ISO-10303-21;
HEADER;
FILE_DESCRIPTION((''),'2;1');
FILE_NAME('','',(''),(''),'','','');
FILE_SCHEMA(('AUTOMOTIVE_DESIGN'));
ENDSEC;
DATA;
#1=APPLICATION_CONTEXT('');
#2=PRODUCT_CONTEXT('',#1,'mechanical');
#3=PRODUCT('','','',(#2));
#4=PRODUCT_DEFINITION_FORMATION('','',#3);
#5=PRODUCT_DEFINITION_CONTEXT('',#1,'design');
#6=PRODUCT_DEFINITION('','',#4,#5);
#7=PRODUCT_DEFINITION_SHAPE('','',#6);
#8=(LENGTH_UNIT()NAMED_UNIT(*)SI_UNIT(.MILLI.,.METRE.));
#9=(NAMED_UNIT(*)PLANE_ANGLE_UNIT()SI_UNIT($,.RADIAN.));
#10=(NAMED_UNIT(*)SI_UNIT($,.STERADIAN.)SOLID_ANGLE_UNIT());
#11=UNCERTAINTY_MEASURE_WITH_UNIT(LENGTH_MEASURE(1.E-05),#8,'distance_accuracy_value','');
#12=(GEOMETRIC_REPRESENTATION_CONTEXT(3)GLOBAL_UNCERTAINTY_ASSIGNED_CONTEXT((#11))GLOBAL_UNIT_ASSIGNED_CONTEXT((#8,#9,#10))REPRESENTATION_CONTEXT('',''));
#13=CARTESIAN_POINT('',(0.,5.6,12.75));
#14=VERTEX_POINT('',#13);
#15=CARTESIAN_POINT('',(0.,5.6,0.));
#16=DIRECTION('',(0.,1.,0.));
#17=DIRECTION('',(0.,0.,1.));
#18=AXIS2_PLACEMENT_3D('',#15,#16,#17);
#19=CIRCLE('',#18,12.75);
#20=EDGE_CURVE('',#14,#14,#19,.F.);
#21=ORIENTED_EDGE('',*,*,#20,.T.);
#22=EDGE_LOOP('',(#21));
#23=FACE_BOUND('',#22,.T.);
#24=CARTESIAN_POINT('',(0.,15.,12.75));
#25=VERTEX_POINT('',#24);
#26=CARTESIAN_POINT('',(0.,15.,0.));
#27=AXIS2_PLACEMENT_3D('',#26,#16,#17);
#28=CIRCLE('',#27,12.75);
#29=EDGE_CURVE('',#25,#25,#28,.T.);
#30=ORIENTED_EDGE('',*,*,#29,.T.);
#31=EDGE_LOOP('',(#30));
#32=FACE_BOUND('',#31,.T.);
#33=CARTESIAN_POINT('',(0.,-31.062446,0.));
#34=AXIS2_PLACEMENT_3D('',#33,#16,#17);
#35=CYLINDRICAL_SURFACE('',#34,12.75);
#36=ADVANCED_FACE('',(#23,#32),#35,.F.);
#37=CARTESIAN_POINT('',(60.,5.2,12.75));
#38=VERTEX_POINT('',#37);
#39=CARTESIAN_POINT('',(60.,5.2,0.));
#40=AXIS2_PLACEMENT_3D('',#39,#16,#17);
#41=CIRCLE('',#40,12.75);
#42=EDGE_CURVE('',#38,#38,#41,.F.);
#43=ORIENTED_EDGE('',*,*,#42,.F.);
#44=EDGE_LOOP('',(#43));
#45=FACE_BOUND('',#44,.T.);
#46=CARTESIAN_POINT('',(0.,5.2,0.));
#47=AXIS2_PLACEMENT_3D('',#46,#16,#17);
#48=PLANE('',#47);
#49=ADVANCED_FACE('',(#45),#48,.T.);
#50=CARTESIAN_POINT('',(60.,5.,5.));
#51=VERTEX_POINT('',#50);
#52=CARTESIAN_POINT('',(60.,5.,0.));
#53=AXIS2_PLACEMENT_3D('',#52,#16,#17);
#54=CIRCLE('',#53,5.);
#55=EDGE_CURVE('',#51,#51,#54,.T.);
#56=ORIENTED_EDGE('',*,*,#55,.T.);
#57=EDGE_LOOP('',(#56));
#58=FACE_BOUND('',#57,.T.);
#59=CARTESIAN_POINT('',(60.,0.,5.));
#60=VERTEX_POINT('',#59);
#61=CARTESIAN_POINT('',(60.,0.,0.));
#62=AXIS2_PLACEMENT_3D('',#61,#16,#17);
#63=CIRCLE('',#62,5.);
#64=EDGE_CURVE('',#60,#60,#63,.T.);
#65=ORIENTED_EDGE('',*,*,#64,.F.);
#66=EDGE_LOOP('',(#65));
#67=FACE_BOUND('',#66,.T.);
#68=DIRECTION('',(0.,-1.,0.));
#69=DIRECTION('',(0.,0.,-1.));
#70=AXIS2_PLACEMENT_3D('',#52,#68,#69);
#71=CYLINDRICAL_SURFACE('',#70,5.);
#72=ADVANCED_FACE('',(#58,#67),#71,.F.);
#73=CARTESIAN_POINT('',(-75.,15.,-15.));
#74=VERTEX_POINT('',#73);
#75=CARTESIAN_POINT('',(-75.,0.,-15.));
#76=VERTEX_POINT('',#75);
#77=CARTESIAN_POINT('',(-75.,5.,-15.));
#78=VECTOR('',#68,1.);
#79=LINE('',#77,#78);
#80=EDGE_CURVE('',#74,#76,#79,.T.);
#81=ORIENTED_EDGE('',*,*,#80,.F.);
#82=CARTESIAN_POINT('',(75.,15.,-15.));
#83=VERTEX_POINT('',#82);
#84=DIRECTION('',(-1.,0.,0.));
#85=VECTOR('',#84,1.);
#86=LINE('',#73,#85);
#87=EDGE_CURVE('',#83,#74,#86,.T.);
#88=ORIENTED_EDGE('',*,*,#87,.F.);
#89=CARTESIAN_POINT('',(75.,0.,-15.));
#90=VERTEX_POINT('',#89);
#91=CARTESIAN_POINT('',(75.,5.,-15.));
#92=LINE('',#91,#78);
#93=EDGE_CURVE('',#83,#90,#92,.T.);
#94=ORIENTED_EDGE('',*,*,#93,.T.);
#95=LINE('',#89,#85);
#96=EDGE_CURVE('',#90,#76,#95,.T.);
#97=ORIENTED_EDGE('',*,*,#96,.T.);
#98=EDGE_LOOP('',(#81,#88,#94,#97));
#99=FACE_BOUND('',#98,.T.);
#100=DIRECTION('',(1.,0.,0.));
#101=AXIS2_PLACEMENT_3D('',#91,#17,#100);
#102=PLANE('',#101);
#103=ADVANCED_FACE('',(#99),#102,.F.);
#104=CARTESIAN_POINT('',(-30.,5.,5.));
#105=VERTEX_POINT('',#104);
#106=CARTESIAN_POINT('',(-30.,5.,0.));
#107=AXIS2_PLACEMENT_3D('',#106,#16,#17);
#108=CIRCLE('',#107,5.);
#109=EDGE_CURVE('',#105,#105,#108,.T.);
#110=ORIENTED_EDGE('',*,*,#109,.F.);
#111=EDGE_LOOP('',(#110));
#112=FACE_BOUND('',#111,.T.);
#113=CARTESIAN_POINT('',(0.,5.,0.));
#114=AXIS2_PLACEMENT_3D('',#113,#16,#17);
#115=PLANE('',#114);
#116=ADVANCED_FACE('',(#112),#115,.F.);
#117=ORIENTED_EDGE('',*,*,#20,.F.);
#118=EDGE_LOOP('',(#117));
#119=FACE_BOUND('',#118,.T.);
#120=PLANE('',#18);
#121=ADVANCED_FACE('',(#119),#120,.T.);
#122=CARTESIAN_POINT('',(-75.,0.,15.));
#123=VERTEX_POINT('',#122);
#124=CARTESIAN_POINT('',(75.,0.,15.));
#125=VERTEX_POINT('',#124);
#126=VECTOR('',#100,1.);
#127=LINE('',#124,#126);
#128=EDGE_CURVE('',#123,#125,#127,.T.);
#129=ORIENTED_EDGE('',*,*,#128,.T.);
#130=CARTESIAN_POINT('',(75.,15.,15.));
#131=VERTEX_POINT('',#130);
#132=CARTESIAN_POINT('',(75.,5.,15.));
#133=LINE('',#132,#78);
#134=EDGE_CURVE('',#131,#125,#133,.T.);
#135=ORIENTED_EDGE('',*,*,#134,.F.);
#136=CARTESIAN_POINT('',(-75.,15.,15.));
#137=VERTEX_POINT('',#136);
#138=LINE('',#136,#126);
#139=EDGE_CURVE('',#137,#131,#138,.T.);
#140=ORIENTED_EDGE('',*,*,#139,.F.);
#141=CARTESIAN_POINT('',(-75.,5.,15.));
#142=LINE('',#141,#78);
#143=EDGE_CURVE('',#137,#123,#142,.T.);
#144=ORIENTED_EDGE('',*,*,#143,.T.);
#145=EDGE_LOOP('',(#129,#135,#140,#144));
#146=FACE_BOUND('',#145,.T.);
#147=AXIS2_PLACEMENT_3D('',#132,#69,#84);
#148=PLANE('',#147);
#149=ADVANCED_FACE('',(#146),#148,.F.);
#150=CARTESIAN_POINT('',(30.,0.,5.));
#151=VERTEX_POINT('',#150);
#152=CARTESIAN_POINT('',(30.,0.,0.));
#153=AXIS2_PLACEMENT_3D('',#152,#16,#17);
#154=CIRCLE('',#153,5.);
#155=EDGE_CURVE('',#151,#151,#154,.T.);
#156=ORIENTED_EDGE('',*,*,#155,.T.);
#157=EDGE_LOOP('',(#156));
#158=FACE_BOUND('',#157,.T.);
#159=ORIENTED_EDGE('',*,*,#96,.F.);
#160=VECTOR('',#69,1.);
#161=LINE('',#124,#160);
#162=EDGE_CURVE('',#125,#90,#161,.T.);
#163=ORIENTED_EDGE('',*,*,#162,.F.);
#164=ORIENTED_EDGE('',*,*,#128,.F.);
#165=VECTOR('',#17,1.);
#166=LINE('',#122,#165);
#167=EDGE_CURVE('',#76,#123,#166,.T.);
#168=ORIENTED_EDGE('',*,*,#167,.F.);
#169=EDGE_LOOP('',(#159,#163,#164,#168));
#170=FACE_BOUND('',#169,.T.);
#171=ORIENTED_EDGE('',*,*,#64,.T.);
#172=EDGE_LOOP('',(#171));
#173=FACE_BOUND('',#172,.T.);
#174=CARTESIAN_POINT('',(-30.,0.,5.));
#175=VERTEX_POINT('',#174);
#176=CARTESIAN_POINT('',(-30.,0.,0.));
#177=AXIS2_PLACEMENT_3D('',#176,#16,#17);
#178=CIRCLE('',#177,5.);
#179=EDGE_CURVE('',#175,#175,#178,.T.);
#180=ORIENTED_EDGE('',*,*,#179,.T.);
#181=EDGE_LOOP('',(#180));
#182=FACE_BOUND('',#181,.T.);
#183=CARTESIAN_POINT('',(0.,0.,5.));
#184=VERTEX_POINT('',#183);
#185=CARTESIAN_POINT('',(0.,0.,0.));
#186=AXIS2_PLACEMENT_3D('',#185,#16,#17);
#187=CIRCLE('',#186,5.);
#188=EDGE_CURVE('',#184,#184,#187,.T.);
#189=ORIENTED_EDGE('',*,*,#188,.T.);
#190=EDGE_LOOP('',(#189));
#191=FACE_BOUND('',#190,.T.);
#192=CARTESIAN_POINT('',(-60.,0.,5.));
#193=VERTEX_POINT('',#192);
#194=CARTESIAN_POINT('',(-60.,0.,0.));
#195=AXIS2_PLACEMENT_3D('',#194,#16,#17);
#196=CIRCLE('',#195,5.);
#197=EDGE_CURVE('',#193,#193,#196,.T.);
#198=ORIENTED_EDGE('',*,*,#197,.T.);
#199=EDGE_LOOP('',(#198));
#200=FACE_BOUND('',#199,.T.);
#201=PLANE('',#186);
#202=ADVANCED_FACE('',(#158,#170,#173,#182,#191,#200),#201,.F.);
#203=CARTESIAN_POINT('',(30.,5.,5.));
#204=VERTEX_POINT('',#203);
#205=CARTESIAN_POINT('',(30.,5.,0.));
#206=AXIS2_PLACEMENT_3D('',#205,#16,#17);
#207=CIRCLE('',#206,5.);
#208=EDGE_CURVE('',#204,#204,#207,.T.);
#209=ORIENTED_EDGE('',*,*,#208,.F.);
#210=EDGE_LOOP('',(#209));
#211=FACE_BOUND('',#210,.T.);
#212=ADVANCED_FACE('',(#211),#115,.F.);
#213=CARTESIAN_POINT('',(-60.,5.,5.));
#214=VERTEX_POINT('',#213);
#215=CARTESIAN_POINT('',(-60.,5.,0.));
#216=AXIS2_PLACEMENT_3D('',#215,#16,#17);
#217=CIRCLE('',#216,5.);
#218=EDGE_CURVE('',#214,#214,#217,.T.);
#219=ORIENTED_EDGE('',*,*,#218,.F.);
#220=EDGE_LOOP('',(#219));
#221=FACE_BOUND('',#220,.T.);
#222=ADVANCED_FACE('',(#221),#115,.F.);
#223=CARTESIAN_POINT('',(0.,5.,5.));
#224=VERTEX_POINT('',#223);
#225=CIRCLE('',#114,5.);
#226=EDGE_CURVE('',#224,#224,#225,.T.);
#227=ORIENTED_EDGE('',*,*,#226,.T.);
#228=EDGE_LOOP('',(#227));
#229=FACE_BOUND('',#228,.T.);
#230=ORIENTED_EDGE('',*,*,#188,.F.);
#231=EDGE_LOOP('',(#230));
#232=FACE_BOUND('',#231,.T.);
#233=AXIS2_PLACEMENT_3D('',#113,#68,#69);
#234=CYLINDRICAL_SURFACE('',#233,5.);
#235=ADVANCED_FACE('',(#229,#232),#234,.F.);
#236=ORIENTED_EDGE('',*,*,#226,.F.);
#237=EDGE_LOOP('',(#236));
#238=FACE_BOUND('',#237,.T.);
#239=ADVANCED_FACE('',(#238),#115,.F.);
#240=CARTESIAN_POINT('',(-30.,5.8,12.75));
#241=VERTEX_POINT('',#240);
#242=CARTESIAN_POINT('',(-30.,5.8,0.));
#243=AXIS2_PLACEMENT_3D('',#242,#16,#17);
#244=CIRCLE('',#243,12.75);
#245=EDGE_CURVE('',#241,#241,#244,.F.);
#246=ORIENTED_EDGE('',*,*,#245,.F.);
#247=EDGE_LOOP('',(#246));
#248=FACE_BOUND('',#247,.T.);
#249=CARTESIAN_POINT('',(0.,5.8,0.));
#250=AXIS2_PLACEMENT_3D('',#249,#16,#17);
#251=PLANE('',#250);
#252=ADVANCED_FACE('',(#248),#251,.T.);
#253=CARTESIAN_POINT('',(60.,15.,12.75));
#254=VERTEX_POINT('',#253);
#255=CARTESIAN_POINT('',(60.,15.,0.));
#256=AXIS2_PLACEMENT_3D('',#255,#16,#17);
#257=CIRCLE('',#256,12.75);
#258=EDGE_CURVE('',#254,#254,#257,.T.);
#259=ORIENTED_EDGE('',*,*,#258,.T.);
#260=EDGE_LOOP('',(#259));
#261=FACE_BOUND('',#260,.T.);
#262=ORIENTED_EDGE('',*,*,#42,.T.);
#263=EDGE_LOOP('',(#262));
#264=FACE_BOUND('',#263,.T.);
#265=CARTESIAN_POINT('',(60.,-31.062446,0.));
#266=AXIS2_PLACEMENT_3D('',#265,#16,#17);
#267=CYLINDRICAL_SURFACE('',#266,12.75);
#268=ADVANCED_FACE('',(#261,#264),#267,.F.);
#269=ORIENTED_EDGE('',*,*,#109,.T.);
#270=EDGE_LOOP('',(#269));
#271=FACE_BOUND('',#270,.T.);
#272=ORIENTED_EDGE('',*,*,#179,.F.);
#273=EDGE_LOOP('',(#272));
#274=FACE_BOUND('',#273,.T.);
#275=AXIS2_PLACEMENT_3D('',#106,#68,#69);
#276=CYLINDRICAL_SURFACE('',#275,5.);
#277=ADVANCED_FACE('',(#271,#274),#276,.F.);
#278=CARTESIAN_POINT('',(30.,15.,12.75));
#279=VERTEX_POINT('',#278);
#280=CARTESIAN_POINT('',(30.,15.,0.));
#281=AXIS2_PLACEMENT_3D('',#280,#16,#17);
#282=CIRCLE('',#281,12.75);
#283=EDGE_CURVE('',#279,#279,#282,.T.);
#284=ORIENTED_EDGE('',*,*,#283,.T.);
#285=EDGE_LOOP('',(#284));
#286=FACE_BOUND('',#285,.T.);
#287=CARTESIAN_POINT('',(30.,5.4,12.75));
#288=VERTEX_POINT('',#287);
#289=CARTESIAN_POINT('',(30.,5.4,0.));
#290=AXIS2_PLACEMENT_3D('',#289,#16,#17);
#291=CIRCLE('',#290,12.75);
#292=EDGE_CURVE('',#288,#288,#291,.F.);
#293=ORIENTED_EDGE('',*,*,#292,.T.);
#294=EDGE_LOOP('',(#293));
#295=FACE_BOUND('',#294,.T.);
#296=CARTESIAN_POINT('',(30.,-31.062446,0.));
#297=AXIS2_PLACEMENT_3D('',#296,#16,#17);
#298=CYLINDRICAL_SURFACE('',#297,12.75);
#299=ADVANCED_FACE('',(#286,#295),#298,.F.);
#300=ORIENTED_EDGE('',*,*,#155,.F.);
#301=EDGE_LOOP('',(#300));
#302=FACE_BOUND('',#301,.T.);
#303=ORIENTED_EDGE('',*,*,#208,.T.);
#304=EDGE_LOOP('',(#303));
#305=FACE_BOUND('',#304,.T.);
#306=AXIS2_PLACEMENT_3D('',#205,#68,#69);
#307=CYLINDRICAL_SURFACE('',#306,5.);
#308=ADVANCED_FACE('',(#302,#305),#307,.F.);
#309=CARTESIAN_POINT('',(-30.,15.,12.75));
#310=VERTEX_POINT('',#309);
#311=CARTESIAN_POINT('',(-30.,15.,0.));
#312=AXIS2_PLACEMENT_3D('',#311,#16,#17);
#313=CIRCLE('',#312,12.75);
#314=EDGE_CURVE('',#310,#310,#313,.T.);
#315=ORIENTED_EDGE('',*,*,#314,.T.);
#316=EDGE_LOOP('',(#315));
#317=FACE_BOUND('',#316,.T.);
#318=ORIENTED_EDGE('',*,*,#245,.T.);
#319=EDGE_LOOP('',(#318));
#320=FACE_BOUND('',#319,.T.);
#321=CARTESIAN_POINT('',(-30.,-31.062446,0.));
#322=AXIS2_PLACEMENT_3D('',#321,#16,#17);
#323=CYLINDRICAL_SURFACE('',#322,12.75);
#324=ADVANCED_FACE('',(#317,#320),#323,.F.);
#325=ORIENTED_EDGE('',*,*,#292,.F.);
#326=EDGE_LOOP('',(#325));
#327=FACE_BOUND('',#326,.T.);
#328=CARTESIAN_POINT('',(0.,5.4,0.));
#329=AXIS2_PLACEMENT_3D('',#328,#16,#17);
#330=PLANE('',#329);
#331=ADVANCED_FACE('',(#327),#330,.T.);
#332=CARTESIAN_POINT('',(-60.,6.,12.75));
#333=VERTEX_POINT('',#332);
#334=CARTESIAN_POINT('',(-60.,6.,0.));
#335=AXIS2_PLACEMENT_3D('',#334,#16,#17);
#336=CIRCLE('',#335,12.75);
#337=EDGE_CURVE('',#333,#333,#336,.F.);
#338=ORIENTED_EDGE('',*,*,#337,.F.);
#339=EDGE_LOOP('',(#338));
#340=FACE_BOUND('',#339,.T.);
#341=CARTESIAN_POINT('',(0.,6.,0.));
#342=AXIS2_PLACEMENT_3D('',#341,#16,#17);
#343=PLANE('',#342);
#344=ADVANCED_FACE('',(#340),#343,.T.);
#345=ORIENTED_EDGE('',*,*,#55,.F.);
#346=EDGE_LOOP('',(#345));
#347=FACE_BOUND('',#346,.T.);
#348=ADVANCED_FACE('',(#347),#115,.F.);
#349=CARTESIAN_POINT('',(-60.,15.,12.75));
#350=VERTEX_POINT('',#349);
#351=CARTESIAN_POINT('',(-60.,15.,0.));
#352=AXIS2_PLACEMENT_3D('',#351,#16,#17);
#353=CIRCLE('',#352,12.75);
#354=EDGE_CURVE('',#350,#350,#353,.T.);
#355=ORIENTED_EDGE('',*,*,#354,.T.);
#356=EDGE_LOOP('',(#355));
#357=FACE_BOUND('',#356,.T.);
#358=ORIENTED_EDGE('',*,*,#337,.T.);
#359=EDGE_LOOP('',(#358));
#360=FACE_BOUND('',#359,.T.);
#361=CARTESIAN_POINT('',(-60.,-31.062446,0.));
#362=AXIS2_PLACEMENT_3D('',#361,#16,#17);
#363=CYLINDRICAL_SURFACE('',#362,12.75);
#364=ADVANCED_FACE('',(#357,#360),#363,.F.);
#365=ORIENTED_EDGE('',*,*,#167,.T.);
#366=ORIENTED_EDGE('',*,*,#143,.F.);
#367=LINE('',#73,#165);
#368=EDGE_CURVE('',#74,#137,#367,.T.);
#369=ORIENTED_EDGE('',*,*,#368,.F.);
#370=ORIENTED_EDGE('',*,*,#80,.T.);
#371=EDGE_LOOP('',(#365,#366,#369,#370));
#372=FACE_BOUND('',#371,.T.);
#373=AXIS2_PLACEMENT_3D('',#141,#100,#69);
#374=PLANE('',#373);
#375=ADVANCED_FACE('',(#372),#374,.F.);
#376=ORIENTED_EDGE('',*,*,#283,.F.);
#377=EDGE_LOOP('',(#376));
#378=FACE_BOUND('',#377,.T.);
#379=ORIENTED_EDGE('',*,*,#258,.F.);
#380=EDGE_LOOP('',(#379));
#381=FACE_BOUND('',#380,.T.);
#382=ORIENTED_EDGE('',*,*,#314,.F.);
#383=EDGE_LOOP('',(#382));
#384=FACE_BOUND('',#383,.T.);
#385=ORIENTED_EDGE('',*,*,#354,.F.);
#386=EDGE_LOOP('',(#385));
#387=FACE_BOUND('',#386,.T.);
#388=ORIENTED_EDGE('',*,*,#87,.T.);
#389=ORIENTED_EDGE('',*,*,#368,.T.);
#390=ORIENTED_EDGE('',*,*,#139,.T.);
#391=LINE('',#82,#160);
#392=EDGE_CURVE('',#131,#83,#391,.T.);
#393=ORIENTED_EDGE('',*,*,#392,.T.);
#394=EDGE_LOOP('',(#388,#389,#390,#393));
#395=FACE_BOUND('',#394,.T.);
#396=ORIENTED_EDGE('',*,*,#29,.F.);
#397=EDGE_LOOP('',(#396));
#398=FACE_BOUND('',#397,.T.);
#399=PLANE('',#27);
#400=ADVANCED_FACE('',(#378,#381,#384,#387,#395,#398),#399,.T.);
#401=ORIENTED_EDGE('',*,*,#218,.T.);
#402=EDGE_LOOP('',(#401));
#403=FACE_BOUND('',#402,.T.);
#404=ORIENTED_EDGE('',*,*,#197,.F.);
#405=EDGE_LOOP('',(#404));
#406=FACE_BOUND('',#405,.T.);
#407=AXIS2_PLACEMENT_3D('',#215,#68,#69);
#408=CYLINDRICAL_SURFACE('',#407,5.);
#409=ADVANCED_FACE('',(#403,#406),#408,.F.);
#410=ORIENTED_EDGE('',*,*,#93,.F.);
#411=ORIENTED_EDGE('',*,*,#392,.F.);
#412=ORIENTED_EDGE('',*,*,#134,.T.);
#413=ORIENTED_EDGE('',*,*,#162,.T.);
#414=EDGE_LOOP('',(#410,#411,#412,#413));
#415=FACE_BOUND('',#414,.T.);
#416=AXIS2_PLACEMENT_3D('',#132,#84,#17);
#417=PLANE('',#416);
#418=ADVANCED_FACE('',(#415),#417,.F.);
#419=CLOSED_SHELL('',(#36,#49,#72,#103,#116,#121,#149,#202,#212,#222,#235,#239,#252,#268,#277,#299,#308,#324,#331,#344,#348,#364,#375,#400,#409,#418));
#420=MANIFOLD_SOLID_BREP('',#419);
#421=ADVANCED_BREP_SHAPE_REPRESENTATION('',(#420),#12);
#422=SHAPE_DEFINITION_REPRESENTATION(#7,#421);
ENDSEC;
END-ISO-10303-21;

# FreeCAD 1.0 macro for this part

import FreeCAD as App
import Part
import Sketcher
Q = App.Units.Quantity


def add_polygon(sketch, points):
    """Adds a closed chain of lines whose ends are joined by coincident constraints."""
    first, n = sketch.GeometryCount, len(points)
    for a, b in zip(points, points[1:] + points[:1]):
        sketch.addGeometry(Part.LineSegment(App.Vector(*a, 0), App.Vector(*b, 0)), False)
    for i in range(n):
        sketch.addConstraint(Sketcher.Constraint("Coincident", first + i, 2, first + (i + 1) % n, 1))

doc = App.newDocument("Part")
body = doc.addObject("PartDesign::Body", "Body")

# Sketch on XZ plane
sketch1 = body.newObject("Sketcher::SketchObject", "Sketch")
sketch1.AttachmentSupport = (doc.getObject("XZ_Plane"), [""])
sketch1.MapMode = "FlatFace"
add_polygon(sketch1, [(-75, -15), (-75, 15), (75, 15), (75, -15)])  # lines 0-3
sketch1.addGeometry(Part.Circle(App.Vector(-60, 0, 0), App.Vector(0, 0, 1), 5), False)  # 4
sketch1.addGeometry(Part.Circle(App.Vector(-30, 0, 0), App.Vector(0, 0, 1), 5), False)  # 5
sketch1.addGeometry(Part.Circle(App.Vector(0, 0, 0), App.Vector(0, 0, 1), 5), False)  # 6
sketch1.addGeometry(Part.Circle(App.Vector(30, 0, 0), App.Vector(0, 0, 1), 5), False)  # 7
sketch1.addGeometry(Part.Circle(App.Vector(60, 0, 0), App.Vector(0, 0, 1), 5), False)  # 8
sketch1.addConstraint([
    Sketcher.Constraint("Vertical", 0),
    Sketcher.Constraint("Horizontal", 1),
    Sketcher.Constraint("Vertical", 2),
    Sketcher.Constraint("Horizontal", 3),
    Sketcher.Constraint("Coincident", 6, 3, -1, 1),
    Sketcher.Constraint("Equal", 4, 5),
    Sketcher.Constraint("Equal", 5, 6),
    Sketcher.Constraint("Equal", 6, 7),
    Sketcher.Constraint("Equal", 7, 8),
    Sketcher.Constraint("Symmetric", 5, 3, 7, 3, -1, 1),
    Sketcher.Constraint("Symmetric", 4, 3, 8, 3, -1, 1),
    Sketcher.Constraint("Symmetric", 0, 2, 2, 2, -1, 1),
    Sketcher.Constraint("PointOnObject", 4, 3, -1),
    Sketcher.Constraint("PointOnObject", 5, 3, -1),
    Sketcher.Constraint("Diameter", 4, Q("10 mm")),
    Sketcher.Constraint("DistanceX", 1, 1, 1, 2, Q("150 mm")),
    Sketcher.Constraint("DistanceY", 0, 1, 0, 2, Q("30 mm")),
    Sketcher.Constraint("DistanceX", 4, 3, -1, 1, Q("60 mm")),
    Sketcher.Constraint("DistanceX", 5, 3, -1, 1, Q("30 mm")),
])
pad1 = body.newObject("PartDesign::Pad", "Pad")
pad1.Profile = sketch1
pad1.Length = 5
pad1.Reversed = True

# Sketch on XZ plane
sketch2 = body.newObject("Sketcher::SketchObject", "Sketch001")
sketch2.AttachmentSupport = (doc.getObject("XZ_Plane"), [""])
sketch2.MapMode = "FlatFace"
sketch2.AttachmentOffset = App.Placement(App.Vector(0, 0, -5), App.Rotation())
add_polygon(sketch2, [(-75, -15), (-75, 15), (75, 15), (75, -15)])  # lines 0-3
sketch2.addConstraint([
    Sketcher.Constraint("Vertical", 0),
    Sketcher.Constraint("Horizontal", 1),
    Sketcher.Constraint("Vertical", 2),
    Sketcher.Constraint("Horizontal", 3),
    Sketcher.Constraint("Symmetric", 0, 2, 2, 2, -1, 1),
    Sketcher.Constraint("DistanceX", 1, 1, 1, 2, Q("150 mm")),
    Sketcher.Constraint("DistanceY", 0, 1, 0, 2, Q("30 mm")),
])
pad2 = body.newObject("PartDesign::Pad", "Pad001")
pad2.Profile = sketch2
pad2.Length = 10
pad2.Reversed = True

# Sketch on XZ plane
sketch3 = body.newObject("Sketcher::SketchObject", "Sketch002")
sketch3.AttachmentSupport = (doc.getObject("XZ_Plane"), [""])
sketch3.MapMode = "FlatFace"
sketch3.AttachmentOffset = App.Placement(App.Vector(0, 0, -15), App.Rotation())
sketch3.addGeometry(Part.Circle(App.Vector(-60, 0, 0), App.Vector(0, 0, 1), 13), False)
sketch3.addConstraint([
    Sketcher.Constraint("PointOnObject", 0, 3, -1),
    Sketcher.Constraint("Diameter", 0, Q("25.5 mm")),
    Sketcher.Constraint("DistanceX", 0, 3, -1, 1, Q("60 mm")),
])
pocket1 = body.newObject("PartDesign::Pocket", "Pocket")
pocket1.Profile = sketch3
pocket1.Length = 9
pocket1.Reversed = True

# Sketch on XZ plane
sketch4 = body.newObject("Sketcher::SketchObject", "Sketch003")
sketch4.AttachmentSupport = (doc.getObject("XZ_Plane"), [""])
sketch4.MapMode = "FlatFace"
sketch4.AttachmentOffset = App.Placement(App.Vector(0, 0, -15), App.Rotation())
sketch4.addGeometry(Part.Circle(App.Vector(-30, 0, 0), App.Vector(0, 0, 1), 13), False)
sketch4.addConstraint([
    Sketcher.Constraint("PointOnObject", 0, 3, -1),
    Sketcher.Constraint("Diameter", 0, Q("25.5 mm")),
    Sketcher.Constraint("DistanceX", 0, 3, -1, 1, Q("30 mm")),
])
pocket2 = body.newObject("PartDesign::Pocket", "Pocket001")
pocket2.Profile = sketch4
pocket2.Length = 9.2
pocket2.Reversed = True

# Sketch on XZ plane
sketch5 = body.newObject("Sketcher::SketchObject", "Sketch004")
sketch5.AttachmentSupport = (doc.getObject("XZ_Plane"), [""])
sketch5.MapMode = "FlatFace"
sketch5.AttachmentOffset = App.Placement(App.Vector(0, 0, -15), App.Rotation())
sketch5.addGeometry(Part.Circle(App.Vector(0, 0, 0), App.Vector(0, 0, 1), 13), False)
sketch5.addConstraint([
    Sketcher.Constraint("Coincident", 0, 3, -1, 1),
    Sketcher.Constraint("Diameter", 0, Q("25.5 mm")),
])
pocket3 = body.newObject("PartDesign::Pocket", "Pocket002")
pocket3.Profile = sketch5
pocket3.Length = 9.4
pocket3.Reversed = True

# Sketch on XZ plane
sketch6 = body.newObject("Sketcher::SketchObject", "Sketch005")
sketch6.AttachmentSupport = (doc.getObject("XZ_Plane"), [""])
sketch6.MapMode = "FlatFace"
sketch6.AttachmentOffset = App.Placement(App.Vector(0, 0, -15), App.Rotation())
sketch6.addGeometry(Part.Circle(App.Vector(30, 0, 0), App.Vector(0, 0, 1), 13), False)
sketch6.addConstraint([
    Sketcher.Constraint("PointOnObject", 0, 3, -1),
    Sketcher.Constraint("Diameter", 0, Q("25.5 mm")),
    Sketcher.Constraint("DistanceX", -1, 1, 0, 3, Q("30 mm")),
])
pocket4 = body.newObject("PartDesign::Pocket", "Pocket003")
pocket4.Profile = sketch6
pocket4.Length = 9.6
pocket4.Reversed = True

# Sketch on XZ plane
sketch7 = body.newObject("Sketcher::SketchObject", "Sketch006")
sketch7.AttachmentSupport = (doc.getObject("XZ_Plane"), [""])
sketch7.MapMode = "FlatFace"
sketch7.AttachmentOffset = App.Placement(App.Vector(0, 0, -15), App.Rotation())
sketch7.addGeometry(Part.Circle(App.Vector(60, 0, 0), App.Vector(0, 0, 1), 13), False)
sketch7.addConstraint([
    Sketcher.Constraint("PointOnObject", 0, 3, -1),
    Sketcher.Constraint("Diameter", 0, Q("25.5 mm")),
    Sketcher.Constraint("DistanceX", -1, 1, 0, 3, Q("60 mm")),
])
pocket5 = body.newObject("PartDesign::Pocket", "Pocket004")
pocket5.Profile = sketch7
pocket5.Length = 9.8
pocket5.Reversed = True

doc.recompute()
